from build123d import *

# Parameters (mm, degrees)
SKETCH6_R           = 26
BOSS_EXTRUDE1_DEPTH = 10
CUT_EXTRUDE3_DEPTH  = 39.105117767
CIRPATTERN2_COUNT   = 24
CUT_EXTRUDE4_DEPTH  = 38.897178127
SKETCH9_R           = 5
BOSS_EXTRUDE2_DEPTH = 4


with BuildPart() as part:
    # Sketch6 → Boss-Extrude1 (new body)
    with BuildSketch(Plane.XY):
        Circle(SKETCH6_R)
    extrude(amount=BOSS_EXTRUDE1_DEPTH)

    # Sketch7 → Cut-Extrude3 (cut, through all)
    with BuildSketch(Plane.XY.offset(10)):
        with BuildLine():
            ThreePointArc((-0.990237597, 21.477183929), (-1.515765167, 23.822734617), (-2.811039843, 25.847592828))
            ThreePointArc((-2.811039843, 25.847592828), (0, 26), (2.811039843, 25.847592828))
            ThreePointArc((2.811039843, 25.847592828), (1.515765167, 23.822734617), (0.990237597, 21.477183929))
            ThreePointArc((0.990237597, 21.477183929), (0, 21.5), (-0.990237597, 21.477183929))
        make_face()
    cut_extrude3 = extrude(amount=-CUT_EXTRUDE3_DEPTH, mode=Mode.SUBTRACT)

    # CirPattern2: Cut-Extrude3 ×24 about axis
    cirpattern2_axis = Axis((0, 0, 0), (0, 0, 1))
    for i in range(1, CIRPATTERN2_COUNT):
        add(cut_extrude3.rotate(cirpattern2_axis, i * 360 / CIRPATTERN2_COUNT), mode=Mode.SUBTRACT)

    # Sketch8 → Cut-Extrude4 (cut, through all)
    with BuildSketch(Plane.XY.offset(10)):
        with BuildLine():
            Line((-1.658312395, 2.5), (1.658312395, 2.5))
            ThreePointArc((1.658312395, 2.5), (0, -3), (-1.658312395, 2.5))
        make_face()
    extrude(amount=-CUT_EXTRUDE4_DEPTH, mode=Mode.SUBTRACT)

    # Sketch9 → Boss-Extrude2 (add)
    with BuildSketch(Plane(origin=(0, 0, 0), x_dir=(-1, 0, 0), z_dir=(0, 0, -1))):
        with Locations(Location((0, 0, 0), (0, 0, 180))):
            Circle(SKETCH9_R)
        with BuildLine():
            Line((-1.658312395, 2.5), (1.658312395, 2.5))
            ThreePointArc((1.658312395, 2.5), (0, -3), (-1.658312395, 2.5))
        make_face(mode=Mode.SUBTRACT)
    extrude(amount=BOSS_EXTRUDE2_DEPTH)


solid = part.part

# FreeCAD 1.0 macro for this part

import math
import FreeCAD as App
import Part
import Sketcher

V = App.Vector
Q = App.Units.Quantity

doc = App.newDocument("Part")
body = doc.addObject("PartDesign::Body", "Body")

sketch1 = body.newObject("Sketcher::SketchObject", "Sketch")
sketch1.AttachmentSupport = (doc.getObject("XY_Plane"), [""])
sketch1.MapMode = "FlatFace"
sketch1.addGeometry(Part.Circle(V(0, 0, 0), V(0, 0, 1), 26), False)
sketch1.addConstraint([
    Sketcher.Constraint("Coincident", 0, 3, -1, 1),
    Sketcher.Constraint("Diameter", 0, Q("52 mm")),
])
pad1 = body.newObject("PartDesign::Pad", "Pad")
pad1.Profile = sketch1
pad1.Length = 10

sketch2 = body.newObject("Sketcher::SketchObject", "Sketch001")
sketch2.AttachmentSupport = (doc.getObject("XY_Plane"), [""])
sketch2.MapMode = "FlatFace"
sketch2.AttachmentOffset = App.Placement(V(0, 0, 10), App.Rotation())
sketch2.addGeometry([
    Part.ArcOfCircle(Part.Circle(V(-7.911692, 21.15806, 0), V(0, 0, 1), 6.928807), math.radians(2.639838), math.radians(42.595391)),
    Part.ArcOfCircle(Part.Circle(V(0, 0, 0), V(0, 0, 1), 21.5), math.radians(87.360162), math.radians(92.639838)),
    Part.ArcOfCircle(Part.Circle(V(7.911692, 21.15806, 0), V(0, 0, 1), 6.928807), math.radians(137.404609), math.radians(177.360162)),
    Part.ArcOfCircle(Part.Circle(V(0, 0, 0), V(0, 0, 1), 26), math.radians(83.793225), math.radians(96.206775)),
], False)
sketch2.addConstraint([
    Sketcher.Constraint("Coincident", 0, 1, 1, 2),
    Sketcher.Constraint("Coincident", 1, 1, 2, 2),
    Sketcher.Constraint("Coincident", 2, 1, 3, 1),
    Sketcher.Constraint("Coincident", 3, 2, 0, 2),
    Sketcher.Constraint("Coincident", 1, 3, -1, 1),
    Sketcher.Constraint("Coincident", 3, 3, -1, 1),
    Sketcher.Constraint("Equal", 0, 2),
    Sketcher.Constraint("Symmetric", 0, 3, 2, 3, -2),
    Sketcher.Constraint("Radius", 3, Q("26 mm")),
    Sketcher.Constraint("Radius", 1, Q("21.5 mm")),
    Sketcher.Constraint("Radius", 0, Q("6.928807 mm")),
    Sketcher.Constraint("DistanceX", 0, 3, -1, 1, Q("7.911692 mm")),
    Sketcher.Constraint("DistanceY", -1, 1, 0, 3, Q("21.15806 mm")),
])
pocket1 = body.newObject("PartDesign::Pocket", "Pocket")
pocket1.Profile = sketch2
pocket1.Type = "ThroughAll"
doc.recompute()

polarpattern = body.newObject("PartDesign::PolarPattern", "PolarPattern")
polarpattern.Originals = [pocket1]
polarpattern.Axis = (doc.getObject("Z_Axis"), [""])
polarpattern.Angle = 360
polarpattern.Occurrences = 24
body.Tip = polarpattern

sketch3 = body.newObject("Sketcher::SketchObject", "Sketch002")
sketch3.AttachmentSupport = (doc.getObject("XY_Plane"), [""])
sketch3.MapMode = "FlatFace"
sketch3.AttachmentOffset = App.Placement(V(0, 0, 10), App.Rotation())
sketch3.addGeometry([
    Part.LineSegment(V(1.658312, 2.5, 0), V(-1.658312, 2.5, 0)),
    Part.ArcOfCircle(Part.Circle(V(0, 0, 0), V(0, 0, 1), 3), math.radians(123.55731), math.radians(416.44269)),
], False)
sketch3.addConstraint([
    Sketcher.Constraint("Coincident", 0, 1, 1, 2),
    Sketcher.Constraint("Coincident", 1, 1, 0, 2),
    Sketcher.Constraint("Horizontal", 0),
    Sketcher.Constraint("Coincident", 1, 3, -1, 1),
    Sketcher.Constraint("Radius", 1, Q("3 mm")),
    Sketcher.Constraint("DistanceY", -1, 1, 0, 1, Q("2.5 mm")),
])
pocket2 = body.newObject("PartDesign::Pocket", "Pocket001")
pocket2.Profile = sketch3
pocket2.Type = "ThroughAll"

sketch4 = body.newObject("Sketcher::SketchObject", "Sketch003")
sketch4.AttachmentSupport = (doc.getObject("XY_Plane"), [""])
sketch4.MapMode = "FlatFace"
sketch4.addGeometry([
    Part.Circle(V(0, 0, 0), V(0, 0, 1), 5),
    Part.ArcOfCircle(Part.Circle(V(0, 0, 0), V(0, 0, 1), 3), math.radians(123.55731), math.radians(416.44269)),
    Part.LineSegment(V(1.658312, 2.5, 0), V(-1.658312, 2.5, 0)),
], False)
sketch4.addConstraint([
    Sketcher.Constraint("Coincident", 1, 1, 2, 2),
    Sketcher.Constraint("Coincident", 2, 1, 1, 2),
    Sketcher.Constraint("Horizontal", 2),
    Sketcher.Constraint("Coincident", 0, 3, -1, 1),
    Sketcher.Constraint("Coincident", 1, 3, -1, 1),
    Sketcher.Constraint("Diameter", 0, Q("10 mm")),
    Sketcher.Constraint("Radius", 1, Q("3 mm")),
    Sketcher.Constraint("DistanceY", -1, 1, 1, 1, Q("2.5 mm")),
])
pad2 = body.newObject("PartDesign::Pad", "Pad001")
pad2.Profile = sketch4
pad2.Length = 4
pad2.Reversed = True

doc.recompute()
